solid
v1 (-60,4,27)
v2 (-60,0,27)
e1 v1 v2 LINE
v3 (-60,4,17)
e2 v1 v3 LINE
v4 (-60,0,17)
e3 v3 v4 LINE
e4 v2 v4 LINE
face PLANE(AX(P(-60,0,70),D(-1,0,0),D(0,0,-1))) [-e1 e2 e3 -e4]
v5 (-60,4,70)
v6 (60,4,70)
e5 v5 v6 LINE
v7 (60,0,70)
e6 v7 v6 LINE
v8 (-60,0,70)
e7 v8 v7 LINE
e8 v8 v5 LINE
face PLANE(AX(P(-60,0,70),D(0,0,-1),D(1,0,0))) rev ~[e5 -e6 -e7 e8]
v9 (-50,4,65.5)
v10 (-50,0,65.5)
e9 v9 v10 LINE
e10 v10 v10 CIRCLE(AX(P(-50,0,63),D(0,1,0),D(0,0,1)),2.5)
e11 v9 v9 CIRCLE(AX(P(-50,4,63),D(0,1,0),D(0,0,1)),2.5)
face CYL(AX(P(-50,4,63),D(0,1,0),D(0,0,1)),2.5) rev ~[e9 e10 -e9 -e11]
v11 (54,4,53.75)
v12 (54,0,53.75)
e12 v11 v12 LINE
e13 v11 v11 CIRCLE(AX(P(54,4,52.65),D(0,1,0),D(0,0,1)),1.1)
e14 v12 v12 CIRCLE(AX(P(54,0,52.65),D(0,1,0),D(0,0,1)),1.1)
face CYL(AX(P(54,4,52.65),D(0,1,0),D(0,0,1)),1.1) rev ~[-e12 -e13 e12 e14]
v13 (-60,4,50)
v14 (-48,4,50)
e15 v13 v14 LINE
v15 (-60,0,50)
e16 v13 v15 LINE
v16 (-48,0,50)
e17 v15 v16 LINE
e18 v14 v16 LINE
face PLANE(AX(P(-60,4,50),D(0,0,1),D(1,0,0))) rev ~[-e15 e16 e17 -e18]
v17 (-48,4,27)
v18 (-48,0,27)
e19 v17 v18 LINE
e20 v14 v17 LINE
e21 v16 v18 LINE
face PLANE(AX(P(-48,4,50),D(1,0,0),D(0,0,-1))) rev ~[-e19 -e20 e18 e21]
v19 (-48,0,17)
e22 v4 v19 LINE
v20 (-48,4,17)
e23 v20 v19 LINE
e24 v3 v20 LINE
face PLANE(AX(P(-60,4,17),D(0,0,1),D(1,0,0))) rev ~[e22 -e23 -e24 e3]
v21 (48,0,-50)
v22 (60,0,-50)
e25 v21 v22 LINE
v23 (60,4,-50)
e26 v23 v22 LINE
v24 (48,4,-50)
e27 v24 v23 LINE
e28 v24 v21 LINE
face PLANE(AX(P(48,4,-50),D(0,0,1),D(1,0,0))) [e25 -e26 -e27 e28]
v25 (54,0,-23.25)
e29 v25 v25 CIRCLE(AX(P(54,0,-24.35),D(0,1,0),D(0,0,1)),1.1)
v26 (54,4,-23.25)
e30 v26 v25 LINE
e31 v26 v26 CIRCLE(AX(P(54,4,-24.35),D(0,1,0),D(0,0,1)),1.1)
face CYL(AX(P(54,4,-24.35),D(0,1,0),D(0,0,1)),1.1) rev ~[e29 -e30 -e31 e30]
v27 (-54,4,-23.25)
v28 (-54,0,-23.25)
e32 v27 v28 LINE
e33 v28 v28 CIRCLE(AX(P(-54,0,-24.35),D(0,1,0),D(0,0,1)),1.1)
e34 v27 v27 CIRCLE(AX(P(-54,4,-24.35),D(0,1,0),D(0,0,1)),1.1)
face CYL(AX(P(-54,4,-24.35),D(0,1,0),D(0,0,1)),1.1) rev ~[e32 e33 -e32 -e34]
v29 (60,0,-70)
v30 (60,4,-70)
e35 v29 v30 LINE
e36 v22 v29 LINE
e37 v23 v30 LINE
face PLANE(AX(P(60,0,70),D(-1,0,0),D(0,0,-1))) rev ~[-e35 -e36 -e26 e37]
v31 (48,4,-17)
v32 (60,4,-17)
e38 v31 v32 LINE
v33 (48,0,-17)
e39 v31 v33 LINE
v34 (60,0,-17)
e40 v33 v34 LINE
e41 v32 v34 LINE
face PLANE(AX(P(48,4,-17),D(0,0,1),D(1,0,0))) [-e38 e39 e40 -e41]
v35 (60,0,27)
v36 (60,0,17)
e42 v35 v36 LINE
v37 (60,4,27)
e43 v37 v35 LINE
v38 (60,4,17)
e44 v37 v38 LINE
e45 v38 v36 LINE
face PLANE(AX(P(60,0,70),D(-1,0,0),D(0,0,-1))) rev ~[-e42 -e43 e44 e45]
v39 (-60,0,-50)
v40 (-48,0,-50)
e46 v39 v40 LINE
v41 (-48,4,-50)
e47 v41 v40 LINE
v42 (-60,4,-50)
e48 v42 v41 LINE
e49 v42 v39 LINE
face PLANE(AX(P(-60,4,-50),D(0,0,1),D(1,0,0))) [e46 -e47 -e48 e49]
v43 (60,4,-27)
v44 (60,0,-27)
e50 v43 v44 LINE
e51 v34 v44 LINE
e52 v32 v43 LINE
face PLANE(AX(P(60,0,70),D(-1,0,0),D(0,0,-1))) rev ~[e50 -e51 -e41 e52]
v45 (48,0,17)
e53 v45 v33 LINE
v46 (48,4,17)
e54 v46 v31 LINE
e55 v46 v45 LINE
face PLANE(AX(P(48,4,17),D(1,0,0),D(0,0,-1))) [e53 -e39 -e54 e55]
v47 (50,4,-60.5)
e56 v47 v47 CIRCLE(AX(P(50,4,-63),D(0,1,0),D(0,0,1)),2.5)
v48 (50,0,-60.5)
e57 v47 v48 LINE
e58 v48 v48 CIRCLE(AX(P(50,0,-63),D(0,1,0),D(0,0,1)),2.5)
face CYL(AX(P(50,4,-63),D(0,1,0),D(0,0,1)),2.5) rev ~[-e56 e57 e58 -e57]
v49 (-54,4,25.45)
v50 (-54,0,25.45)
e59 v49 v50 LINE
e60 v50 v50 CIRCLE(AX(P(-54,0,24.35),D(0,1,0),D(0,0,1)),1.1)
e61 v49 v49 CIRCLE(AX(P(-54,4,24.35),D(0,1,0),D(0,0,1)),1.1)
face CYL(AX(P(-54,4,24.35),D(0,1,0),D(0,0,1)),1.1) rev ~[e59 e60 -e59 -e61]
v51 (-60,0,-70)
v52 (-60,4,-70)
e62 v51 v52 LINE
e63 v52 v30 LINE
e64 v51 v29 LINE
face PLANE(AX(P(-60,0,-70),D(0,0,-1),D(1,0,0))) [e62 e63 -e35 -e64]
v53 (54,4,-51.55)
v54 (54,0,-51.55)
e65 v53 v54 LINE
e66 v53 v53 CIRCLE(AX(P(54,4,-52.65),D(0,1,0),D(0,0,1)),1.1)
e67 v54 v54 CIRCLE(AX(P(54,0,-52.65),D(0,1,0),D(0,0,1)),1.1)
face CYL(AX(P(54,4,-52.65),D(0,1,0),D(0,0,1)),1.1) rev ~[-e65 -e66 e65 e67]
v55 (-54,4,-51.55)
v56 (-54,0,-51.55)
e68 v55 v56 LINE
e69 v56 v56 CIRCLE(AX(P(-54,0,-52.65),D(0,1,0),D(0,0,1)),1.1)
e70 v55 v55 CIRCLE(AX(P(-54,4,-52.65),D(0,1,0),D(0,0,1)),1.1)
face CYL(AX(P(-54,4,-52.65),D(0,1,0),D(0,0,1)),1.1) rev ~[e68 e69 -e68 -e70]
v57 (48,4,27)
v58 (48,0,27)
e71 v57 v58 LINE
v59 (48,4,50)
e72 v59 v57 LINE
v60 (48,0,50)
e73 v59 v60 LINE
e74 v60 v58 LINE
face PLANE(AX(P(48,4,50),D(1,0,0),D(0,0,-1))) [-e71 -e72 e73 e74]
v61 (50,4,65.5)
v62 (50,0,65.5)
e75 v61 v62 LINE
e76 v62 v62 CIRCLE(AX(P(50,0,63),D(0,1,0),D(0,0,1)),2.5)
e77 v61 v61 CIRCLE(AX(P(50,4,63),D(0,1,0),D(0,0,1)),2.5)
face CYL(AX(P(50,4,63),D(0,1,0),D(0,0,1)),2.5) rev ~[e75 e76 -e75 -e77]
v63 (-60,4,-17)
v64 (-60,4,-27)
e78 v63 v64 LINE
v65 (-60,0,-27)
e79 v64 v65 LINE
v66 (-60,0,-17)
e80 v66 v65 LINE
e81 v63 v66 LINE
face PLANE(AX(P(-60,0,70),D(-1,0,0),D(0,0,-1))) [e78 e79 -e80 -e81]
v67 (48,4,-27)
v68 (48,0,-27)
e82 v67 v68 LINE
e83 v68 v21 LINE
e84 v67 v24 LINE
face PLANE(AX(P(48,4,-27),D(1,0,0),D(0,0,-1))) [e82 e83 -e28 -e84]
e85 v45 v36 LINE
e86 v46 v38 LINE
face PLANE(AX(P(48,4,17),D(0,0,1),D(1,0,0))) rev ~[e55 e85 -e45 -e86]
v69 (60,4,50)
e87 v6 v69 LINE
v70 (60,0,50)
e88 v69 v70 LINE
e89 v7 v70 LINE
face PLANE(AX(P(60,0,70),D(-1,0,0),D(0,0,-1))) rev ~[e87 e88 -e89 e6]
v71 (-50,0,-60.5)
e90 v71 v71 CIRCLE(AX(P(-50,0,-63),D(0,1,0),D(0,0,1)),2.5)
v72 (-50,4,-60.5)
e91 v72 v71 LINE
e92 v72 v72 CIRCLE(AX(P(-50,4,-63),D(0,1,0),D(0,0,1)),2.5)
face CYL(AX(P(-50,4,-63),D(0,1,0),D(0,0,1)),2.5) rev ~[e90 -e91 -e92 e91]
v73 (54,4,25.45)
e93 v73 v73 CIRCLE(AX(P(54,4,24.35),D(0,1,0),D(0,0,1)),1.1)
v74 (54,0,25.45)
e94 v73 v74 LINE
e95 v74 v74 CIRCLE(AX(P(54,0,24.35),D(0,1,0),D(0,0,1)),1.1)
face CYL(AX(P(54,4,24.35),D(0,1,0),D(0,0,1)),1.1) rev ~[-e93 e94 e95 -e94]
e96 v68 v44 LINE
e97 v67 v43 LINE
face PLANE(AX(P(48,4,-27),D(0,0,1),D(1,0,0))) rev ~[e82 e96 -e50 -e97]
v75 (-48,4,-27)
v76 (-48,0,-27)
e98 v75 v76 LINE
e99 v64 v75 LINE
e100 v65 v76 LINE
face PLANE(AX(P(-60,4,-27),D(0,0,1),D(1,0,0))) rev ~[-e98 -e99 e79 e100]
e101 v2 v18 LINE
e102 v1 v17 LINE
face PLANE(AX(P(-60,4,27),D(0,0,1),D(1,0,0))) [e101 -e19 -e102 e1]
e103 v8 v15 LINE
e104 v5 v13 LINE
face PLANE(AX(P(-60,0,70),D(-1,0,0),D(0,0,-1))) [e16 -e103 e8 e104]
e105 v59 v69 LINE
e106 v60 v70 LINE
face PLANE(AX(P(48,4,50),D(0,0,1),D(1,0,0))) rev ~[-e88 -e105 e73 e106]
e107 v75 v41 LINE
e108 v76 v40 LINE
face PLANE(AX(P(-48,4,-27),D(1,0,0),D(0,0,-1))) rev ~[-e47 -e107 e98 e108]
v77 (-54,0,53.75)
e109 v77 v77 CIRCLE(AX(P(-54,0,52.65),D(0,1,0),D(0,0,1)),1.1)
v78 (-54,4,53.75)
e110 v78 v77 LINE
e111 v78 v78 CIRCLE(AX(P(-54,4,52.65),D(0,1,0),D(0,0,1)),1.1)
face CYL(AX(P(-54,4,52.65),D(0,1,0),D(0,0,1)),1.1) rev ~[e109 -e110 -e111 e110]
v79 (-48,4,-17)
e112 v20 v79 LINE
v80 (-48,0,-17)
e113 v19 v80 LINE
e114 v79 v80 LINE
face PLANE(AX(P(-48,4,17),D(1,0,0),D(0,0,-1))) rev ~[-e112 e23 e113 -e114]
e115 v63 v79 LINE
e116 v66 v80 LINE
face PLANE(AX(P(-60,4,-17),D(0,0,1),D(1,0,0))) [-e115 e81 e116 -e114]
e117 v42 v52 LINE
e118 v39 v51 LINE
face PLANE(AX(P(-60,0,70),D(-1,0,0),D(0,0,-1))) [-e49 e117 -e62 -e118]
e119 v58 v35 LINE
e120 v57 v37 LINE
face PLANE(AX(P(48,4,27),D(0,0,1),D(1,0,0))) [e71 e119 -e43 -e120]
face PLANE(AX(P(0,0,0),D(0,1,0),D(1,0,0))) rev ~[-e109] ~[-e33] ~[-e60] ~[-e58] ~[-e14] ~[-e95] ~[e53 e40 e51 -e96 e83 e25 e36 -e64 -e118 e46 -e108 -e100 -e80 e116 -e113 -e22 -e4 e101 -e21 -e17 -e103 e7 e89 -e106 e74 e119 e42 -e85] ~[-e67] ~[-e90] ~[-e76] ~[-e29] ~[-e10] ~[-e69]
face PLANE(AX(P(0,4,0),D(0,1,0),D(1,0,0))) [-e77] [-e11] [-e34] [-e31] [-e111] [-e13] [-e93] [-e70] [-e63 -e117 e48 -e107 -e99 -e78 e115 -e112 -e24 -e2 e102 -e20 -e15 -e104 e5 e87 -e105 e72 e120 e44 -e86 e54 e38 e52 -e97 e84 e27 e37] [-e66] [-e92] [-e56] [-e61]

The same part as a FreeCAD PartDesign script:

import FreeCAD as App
import Part
import Sketcher
from FreeCAD import Vector
Q = App.Units.Quantity

doc = App.newDocument("Part")
params = doc.addObject("Spreadsheet::Sheet", "Params")
for row, (alias, value) in enumerate([
    ("sketch1_width", "120 mm"),
    ("sketch1_height", "140 mm"),
    ("pad1_length", "4 mm"),
    ("sketch2_diameter", "5 mm"),
    ("sketch2_diameter2", "2.2 mm"),
    ("sketch2_width", "12 mm"),
    ("sketch2_height", "23 mm"),
    ("sketch2_height2", "34 mm"),
], start=1):
    params.set(f"A{row}", alias)
    params.set(f"B{row}", "=" + value)
    params.setAlias(f"B{row}", alias)

body = doc.addObject("PartDesign::Body", "Body")

# Sketch on XZ plane
sketch1 = body.newObject("Sketcher::SketchObject", "Sketch")
sketch1.AttachmentSupport = (doc.getObject("XZ_Plane"), [""])
sketch1.MapMode = "FlatFace"
sketch1.addGeometry(Part.LineSegment(Vector(-60, -70, 0), Vector(-60, 70, 0)), False)
sketch1.addGeometry(Part.LineSegment(Vector(-60, 70, 0), Vector(60, 70, 0)), False)
sketch1.addGeometry(Part.LineSegment(Vector(60, 70, 0), Vector(60, -70, 0)), False)
sketch1.addGeometry(Part.LineSegment(Vector(60, -70, 0), Vector(-60, -70, 0)), False)
sketch1.addConstraint(Sketcher.Constraint("Coincident", 0, 2, 1, 1))
sketch1.addConstraint(Sketcher.Constraint("Coincident", 1, 2, 2, 1))
sketch1.addConstraint(Sketcher.Constraint("Coincident", 2, 2, 3, 1))
sketch1.addConstraint(Sketcher.Constraint("Coincident", 3, 2, 0, 1))
sketch1.addConstraint(Sketcher.Constraint("Vertical", 0))
sketch1.addConstraint(Sketcher.Constraint("Horizontal", 1))
sketch1.addConstraint(Sketcher.Constraint("Vertical", 2))
sketch1.addConstraint(Sketcher.Constraint("Horizontal", 3))
sketch1.addConstraint(Sketcher.Constraint("Symmetric", 0, 2, 2, 2, -1, 1))
sketch1.addConstraint(Sketcher.Constraint("DistanceX", 1, 1, 1, 2, Q("120 mm")))
sketch1.addConstraint(Sketcher.Constraint("DistanceY", 0, 1, 0, 2, Q("140 mm")))
sketch1.setExpression("Constraints[9]", "Params.sketch1_width")
sketch1.setExpression("Constraints[10]", "Params.sketch1_height")
pad1 = body.newObject("PartDesign::Pad", "Pad")
pad1.Profile = sketch1
pad1.setExpression("Length", "Params.pad1_length")
pad1.Reversed = True

# Sketch on XZ plane
sketch2 = body.newObject("Sketcher::SketchObject", "Sketch001")
sketch2.AttachmentSupport = (doc.getObject("XZ_Plane"), [""])
sketch2.MapMode = "FlatFace"
sketch2.AttachmentOffset = App.Placement(Vector(0, 0, -4), App.Rotation())
sketch2.addGeometry(Part.LineSegment(Vector(48, -50, 0), Vector(48, -27, 0)), False)
sketch2.addGeometry(Part.LineSegment(Vector(48, -27, 0), Vector(60, -27, 0)), False)
sketch2.addGeometry(Part.LineSegment(Vector(60, -27, 0), Vector(60, -50, 0)), False)
sketch2.addGeometry(Part.LineSegment(Vector(60, -50, 0), Vector(48, -50, 0)), False)
sketch2.addGeometry(Part.LineSegment(Vector(-60, -50, 0), Vector(-60, -27, 0)), False)
sketch2.addGeometry(Part.LineSegment(Vector(-60, -27, 0), Vector(-48, -27, 0)), False)
sketch2.addGeometry(Part.LineSegment(Vector(-48, -27, 0), Vector(-48, -50, 0)), False)
sketch2.addGeometry(Part.LineSegment(Vector(-48, -50, 0), Vector(-60, -50, 0)), False)
sketch2.addGeometry(Part.LineSegment(Vector(48, 27, 0), Vector(48, 50, 0)), False)
sketch2.addGeometry(Part.LineSegment(Vector(48, 50, 0), Vector(60, 50, 0)), False)
sketch2.addGeometry(Part.LineSegment(Vector(60, 50, 0), Vector(60, 27, 0)), False)
sketch2.addGeometry(Part.LineSegment(Vector(60, 27, 0), Vector(48, 27, 0)), False)
sketch2.addGeometry(Part.LineSegment(Vector(-60, 27, 0), Vector(-60, 50, 0)), False)
sketch2.addGeometry(Part.LineSegment(Vector(-60, 50, 0), Vector(-48, 50, 0)), False)
sketch2.addGeometry(Part.LineSegment(Vector(-48, 50, 0), Vector(-48, 27, 0)), False)
sketch2.addGeometry(Part.LineSegment(Vector(-48, 27, 0), Vector(-60, 27, 0)), False)
sketch2.addGeometry(Part.LineSegment(Vector(-60, -17, 0), Vector(-60, 17, 0)), False)
sketch2.addGeometry(Part.LineSegment(Vector(-60, 17, 0), Vector(-48, 17, 0)), False)
sketch2.addGeometry(Part.LineSegment(Vector(-48, 17, 0), Vector(-48, -17, 0)), False)
sketch2.addGeometry(Part.LineSegment(Vector(-48, -17, 0), Vector(-60, -17, 0)), False)
sketch2.addGeometry(Part.LineSegment(Vector(48, -17, 0), Vector(48, 17, 0)), False)
sketch2.addGeometry(Part.LineSegment(Vector(48, 17, 0), Vector(60, 17, 0)), False)
sketch2.addGeometry(Part.LineSegment(Vector(60, 17, 0), Vector(60, -17, 0)), False)
sketch2.addGeometry(Part.LineSegment(Vector(60, -17, 0), Vector(48, -17, 0)), False)
sketch2.addGeometry(Part.Circle(Vector(-54, -52.6, 0), Vector(0, 0, 1), 1.1), False)
sketch2.addGeometry(Part.Circle(Vector(-54, -24.4, 0), Vector(0, 0, 1), 1.1), False)
sketch2.addGeometry(Part.Circle(Vector(-54, 24.4, 0), Vector(0, 0, 1), 1.1), False)
sketch2.addGeometry(Part.Circle(Vector(-54, 52.6, 0), Vector(0, 0, 1), 1.1), False)
sketch2.addGeometry(Part.Circle(Vector(54, -52.6, 0), Vector(0, 0, 1), 1.1), False)
sketch2.addGeometry(Part.Circle(Vector(54, -24.4, 0), Vector(0, 0, 1), 1.1), False)
sketch2.addGeometry(Part.Circle(Vector(54, 24.4, 0), Vector(0, 0, 1), 1.1), False)
sketch2.addGeometry(Part.Circle(Vector(54, 52.6, 0), Vector(0, 0, 1), 1.1), False)
sketch2.addGeometry(Part.Circle(Vector(-50, -63, 0), Vector(0, 0, 1), 2.5), False)
sketch2.addGeometry(Part.Circle(Vector(50, -63, 0), Vector(0, 0, 1), 2.5), False)
sketch2.addGeometry(Part.Circle(Vector(50, 63, 0), Vector(0, 0, 1), 2.5), False)
sketch2.addGeometry(Part.Circle(Vector(-50, 63, 0), Vector(0, 0, 1), 2.5), False)
sketch2.addConstraint(Sketcher.Constraint("Coincident", 0, 2, 1, 1))
sketch2.addConstraint(Sketcher.Constraint("Coincident", 1, 2, 2, 1))
sketch2.addConstraint(Sketcher.Constraint("Coincident", 2, 2, 3, 1))
sketch2.addConstraint(Sketcher.Constraint("Coincident", 3, 2, 0, 1))
sketch2.addConstraint(Sketcher.Constraint("Coincident", 4, 2, 5, 1))
sketch2.addConstraint(Sketcher.Constraint("Coincident", 5, 2, 6, 1))
sketch2.addConstraint(Sketcher.Constraint("Coincident", 6, 2, 7, 1))
sketch2.addConstraint(Sketcher.Constraint("Coincident", 7, 2, 4, 1))
sketch2.addConstraint(Sketcher.Constraint("Coincident", 8, 2, 9, 1))
sketch2.addConstraint(Sketcher.Constraint("Coincident", 9, 2, 10, 1))
sketch2.addConstraint(Sketcher.Constraint("Coincident", 10, 2, 11, 1))
sketch2.addConstraint(Sketcher.Constraint("Coincident", 11, 2, 8, 1))
sketch2.addConstraint(Sketcher.Constraint("Coincident", 12, 2, 13, 1))
sketch2.addConstraint(Sketcher.Constraint("Coincident", 13, 2, 14, 1))
sketch2.addConstraint(Sketcher.Constraint("Coincident", 14, 2, 15, 1))
sketch2.addConstraint(Sketcher.Constraint("Coincident", 15, 2, 12, 1))
sketch2.addConstraint(Sketcher.Constraint("Coincident", 16, 2, 17, 1))
sketch2.addConstraint(Sketcher.Constraint("Coincident", 17, 2, 18, 1))
sketch2.addConstraint(Sketcher.Constraint("Coincident", 18, 2, 19, 1))
sketch2.addConstraint(Sketcher.Constraint("Coincident", 19, 2, 16, 1))
sketch2.addConstraint(Sketcher.Constraint("Coincident", 20, 2, 21, 1))
sketch2.addConstraint(Sketcher.Constraint("Coincident", 21, 2, 22, 1))
sketch2.addConstraint(Sketcher.Constraint("Coincident", 22, 2, 23, 1))
sketch2.addConstraint(Sketcher.Constraint("Coincident", 23, 2, 20, 1))
sketch2.addConstraint(Sketcher.Constraint("Vertical", 0))
sketch2.addConstraint(Sketcher.Constraint("Horizontal", 1))
sketch2.addConstraint(Sketcher.Constraint("Vertical", 2))
sketch2.addConstraint(Sketcher.Constraint("Horizontal", 3))
sketch2.addConstraint(Sketcher.Constraint("Vertical", 4))
sketch2.addConstraint(Sketcher.Constraint("Horizontal", 5))
sketch2.addConstraint(Sketcher.Constraint("Vertical", 6))
sketch2.addConstraint(Sketcher.Constraint("Horizontal", 7))
sketch2.addConstraint(Sketcher.Constraint("Vertical", 8))
sketch2.addConstraint(Sketcher.Constraint("Horizontal", 9))
sketch2.addConstraint(Sketcher.Constraint("Vertical", 10))
sketch2.addConstraint(Sketcher.Constraint("Horizontal", 11))
sketch2.addConstraint(Sketcher.Constraint("Vertical", 12))
sketch2.addConstraint(Sketcher.Constraint("Horizontal", 13))
sketch2.addConstraint(Sketcher.Constraint("Vertical", 14))
sketch2.addConstraint(Sketcher.Constraint("Horizontal", 15))
sketch2.addConstraint(Sketcher.Constraint("Vertical", 16))
sketch2.addConstraint(Sketcher.Constraint("Horizontal", 17))
sketch2.addConstraint(Sketcher.Constraint("Vertical", 18))
sketch2.addConstraint(Sketcher.Constraint("Horizontal", 19))
sketch2.addConstraint(Sketcher.Constraint("Vertical", 20))
sketch2.addConstraint(Sketcher.Constraint("Horizontal", 21))
sketch2.addConstraint(Sketcher.Constraint("Vertical", 22))
sketch2.addConstraint(Sketcher.Constraint("Horizontal", 23))
sketch2.addConstraint(Sketcher.Constraint("Equal", 24, 25))
sketch2.addConstraint(Sketcher.Constraint("Equal", 25, 26))
sketch2.addConstraint(Sketcher.Constraint("Equal", 26, 27))
sketch2.addConstraint(Sketcher.Constraint("Equal", 27, 28))
sketch2.addConstraint(Sketcher.Constraint("Equal", 28, 29))
sketch2.addConstraint(Sketcher.Constraint("Equal", 29, 30))
sketch2.addConstraint(Sketcher.Constraint("Equal", 30, 31))
sketch2.addConstraint(Sketcher.Constraint("Equal", 32, 33))
sketch2.addConstraint(Sketcher.Constraint("Equal", 33, 34))
sketch2.addConstraint(Sketcher.Constraint("Equal", 34, 35))
sketch2.addConstraint(Sketcher.Constraint("Symmetric", 27, 3, 28, 3, -1, 1))
sketch2.addConstraint(Sketcher.Constraint("Symmetric", 26, 3, 29, 3, -1, 1))
sketch2.addConstraint(Sketcher.Constraint("Symmetric", 25, 3, 30, 3, -1, 1))
sketch2.addConstraint(Sketcher.Constraint("Symmetric", 24, 3, 31, 3, -1, 1))
sketch2.addConstraint(Sketcher.Constraint("Symmetric", 32, 3, 34, 3, -1, 1))
sketch2.addConstraint(Sketcher.Constraint("Symmetric", 33, 3, 35, 3, -1, 1))
sketch2.addConstraint(Sketcher.Constraint("Symmetric", 6, 2, 8, 2, -1, 1))
sketch2.addConstraint(Sketcher.Constraint("Symmetric", 4, 2, 10, 2, -1, 1))
sketch2.addConstraint(Sketcher.Constraint("Symmetric", 2, 2, 12, 2, -1, 1))
sketch2.addConstraint(Sketcher.Constraint("Symmetric", 0, 2, 14, 2, -1, 1))
sketch2.addConstraint(Sketcher.Constraint("Symmetric", 18, 2, 20, 2, -1, 1))
sketch2.addConstraint(Sketcher.Constraint("Symmetric", 16, 2, 22, 2, -1, 1))
sketch2.addConstraint(Sketcher.Constraint("Symmetric", 24, 3, 28, 3, -2))
sketch2.addConstraint(Sketcher.Constraint("Symmetric", 25, 3, 29, 3, -2))
sketch2.addConstraint(Sketcher.Constraint("Symmetric", 32, 3, 33, 3, -2))
sketch2.addConstraint(Sketcher.Constraint("Symmetric", 1, 2, 4, 2, -2))
sketch2.addConstraint(Sketcher.Constraint("Symmetric", 3, 2, 6, 2, -2))
sketch2.addConstraint(Sketcher.Constraint("Horizontal", 17, 2, 20, 2))
sketch2.addConstraint(Sketcher.Constraint("Vertical", 24, 3, 25, 3))
sketch2.addConstraint(Sketcher.Constraint("Vertical", 15, 2, 16, 2))
sketch2.addConstraint(Sketcher.Constraint("Vertical", 14, 2, 17, 2))
sketch2.addConstraint(Sketcher.Constraint("Diameter", 32, Q("5 mm")))
sketch2.addConstraint(Sketcher.Constraint("Diameter", 24, Q("2.2 mm")))
sketch2.addConstraint(Sketcher.Constraint("DistanceX", 1, 1, 1, 2, Q("12 mm")))
sketch2.addConstraint(Sketcher.Constraint("DistanceY", 0, 1, 0, 2, Q("23 mm")))
sketch2.addConstraint(Sketcher.Constraint("DistanceY", 16, 1, 16, 2, Q("34 mm")))
sketch2.addConstraint(Sketcher.Constraint("DistanceX", 24, 3, -1, 1, Q("54 mm")))
sketch2.addConstraint(Sketcher.Constraint("DistanceX", 32, 3, -1, 1, Q("50 mm")))
sketch2.addConstraint(Sketcher.Constraint("DistanceY", 32, 3, -1, 1, Q("63 mm")))
sketch2.addConstraint(Sketcher.Constraint("DistanceX", -1, 1, 0, 2, Q("48 mm")))
sketch2.addConstraint(Sketcher.Constraint("DistanceY", 0, 2, -1, 1, Q("27 mm")))
sketch2.addConstraint(Sketcher.Constraint("DistanceY", 24, 3, 26, 3, Q("77 mm")))
sketch2.addConstraint(Sketcher.Constraint("DistanceY", 24, 3, 25, 3, Q("28.3 mm")))
sketch2.setExpression("Constraints[79]", "Params.sketch2_diameter")
sketch2.setExpression("Constraints[80]", "Params.sketch2_diameter2")
sketch2.setExpression("Constraints[81]", "Params.sketch2_width")
sketch2.setExpression("Constraints[82]", "Params.sketch2_height")
sketch2.setExpression("Constraints[83]", "Params.sketch2_height2")
pocket1 = body.newObject("PartDesign::Pocket", "Pocket")
pocket1.Profile = sketch2
pocket1.Type = "ThroughAll"
pocket1.Reversed = True

doc.recompute()
